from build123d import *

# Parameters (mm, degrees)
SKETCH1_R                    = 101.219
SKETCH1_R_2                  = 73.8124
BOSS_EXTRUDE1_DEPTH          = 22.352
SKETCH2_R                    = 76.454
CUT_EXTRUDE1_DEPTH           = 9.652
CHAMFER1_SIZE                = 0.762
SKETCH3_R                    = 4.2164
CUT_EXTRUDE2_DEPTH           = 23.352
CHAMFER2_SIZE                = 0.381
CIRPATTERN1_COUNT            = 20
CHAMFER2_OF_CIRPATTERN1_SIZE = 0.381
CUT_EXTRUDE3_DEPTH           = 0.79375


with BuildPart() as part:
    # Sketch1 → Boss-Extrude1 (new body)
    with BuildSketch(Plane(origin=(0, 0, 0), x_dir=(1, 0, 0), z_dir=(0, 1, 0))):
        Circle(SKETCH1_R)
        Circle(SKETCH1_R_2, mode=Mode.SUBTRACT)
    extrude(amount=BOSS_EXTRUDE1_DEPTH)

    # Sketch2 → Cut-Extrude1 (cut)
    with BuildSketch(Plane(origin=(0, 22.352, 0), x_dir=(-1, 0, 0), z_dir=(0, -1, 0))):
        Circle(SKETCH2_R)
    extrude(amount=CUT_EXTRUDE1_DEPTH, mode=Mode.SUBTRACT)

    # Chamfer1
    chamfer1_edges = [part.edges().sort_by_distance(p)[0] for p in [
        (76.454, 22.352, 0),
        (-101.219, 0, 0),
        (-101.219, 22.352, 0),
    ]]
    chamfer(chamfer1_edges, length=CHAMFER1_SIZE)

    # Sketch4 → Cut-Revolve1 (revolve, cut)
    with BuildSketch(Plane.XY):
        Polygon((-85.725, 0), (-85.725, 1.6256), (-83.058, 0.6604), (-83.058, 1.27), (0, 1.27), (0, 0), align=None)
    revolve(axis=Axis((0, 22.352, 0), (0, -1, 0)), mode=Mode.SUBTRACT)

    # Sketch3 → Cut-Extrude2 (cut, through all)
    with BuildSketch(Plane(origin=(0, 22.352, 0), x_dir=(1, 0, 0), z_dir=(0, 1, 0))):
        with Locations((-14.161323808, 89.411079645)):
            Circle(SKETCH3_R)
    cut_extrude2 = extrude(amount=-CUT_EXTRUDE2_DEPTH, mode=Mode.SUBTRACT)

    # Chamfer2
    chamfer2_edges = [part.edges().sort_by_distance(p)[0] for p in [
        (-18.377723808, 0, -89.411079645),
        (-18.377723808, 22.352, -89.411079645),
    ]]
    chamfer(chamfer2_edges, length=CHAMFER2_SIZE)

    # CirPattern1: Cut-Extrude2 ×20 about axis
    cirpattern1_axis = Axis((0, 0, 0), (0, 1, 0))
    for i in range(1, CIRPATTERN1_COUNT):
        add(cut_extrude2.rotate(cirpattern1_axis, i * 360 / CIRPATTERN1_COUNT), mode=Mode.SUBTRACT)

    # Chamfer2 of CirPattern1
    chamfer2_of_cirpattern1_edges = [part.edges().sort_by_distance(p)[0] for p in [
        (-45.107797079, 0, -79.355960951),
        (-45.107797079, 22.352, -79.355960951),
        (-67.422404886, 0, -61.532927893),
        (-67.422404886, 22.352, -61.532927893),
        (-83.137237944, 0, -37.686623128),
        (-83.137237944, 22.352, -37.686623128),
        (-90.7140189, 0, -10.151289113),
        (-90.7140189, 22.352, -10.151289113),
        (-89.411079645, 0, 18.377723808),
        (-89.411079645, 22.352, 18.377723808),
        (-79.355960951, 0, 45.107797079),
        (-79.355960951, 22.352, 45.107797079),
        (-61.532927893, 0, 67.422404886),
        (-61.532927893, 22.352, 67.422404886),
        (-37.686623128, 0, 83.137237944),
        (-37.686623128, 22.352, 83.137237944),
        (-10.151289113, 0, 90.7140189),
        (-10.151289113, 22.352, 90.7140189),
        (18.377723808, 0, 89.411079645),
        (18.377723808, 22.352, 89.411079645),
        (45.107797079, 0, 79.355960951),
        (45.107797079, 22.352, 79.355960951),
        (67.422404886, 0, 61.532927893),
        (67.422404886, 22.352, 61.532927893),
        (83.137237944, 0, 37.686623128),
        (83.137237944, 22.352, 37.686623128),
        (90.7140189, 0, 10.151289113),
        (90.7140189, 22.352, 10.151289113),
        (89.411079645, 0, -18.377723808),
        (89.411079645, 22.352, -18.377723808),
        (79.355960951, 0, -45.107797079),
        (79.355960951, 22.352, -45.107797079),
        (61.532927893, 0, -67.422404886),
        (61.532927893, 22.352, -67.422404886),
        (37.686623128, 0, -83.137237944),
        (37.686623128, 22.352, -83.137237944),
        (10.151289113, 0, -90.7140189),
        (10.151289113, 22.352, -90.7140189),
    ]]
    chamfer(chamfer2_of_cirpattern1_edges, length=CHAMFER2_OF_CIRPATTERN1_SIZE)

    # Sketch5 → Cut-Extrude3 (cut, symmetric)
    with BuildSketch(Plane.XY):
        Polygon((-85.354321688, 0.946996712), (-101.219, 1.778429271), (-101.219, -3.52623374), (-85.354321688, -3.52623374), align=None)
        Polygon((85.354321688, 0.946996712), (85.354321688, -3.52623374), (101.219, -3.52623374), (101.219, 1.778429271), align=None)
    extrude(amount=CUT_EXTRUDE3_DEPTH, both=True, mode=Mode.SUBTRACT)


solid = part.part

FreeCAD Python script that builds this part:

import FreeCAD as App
import Part
import Sketcher
from FreeCAD import Vector
Q = App.Units.Quantity


def edges_at(feature, points):
    """Names of the edges that pass closest to the given points."""
    edges = feature.Shape.Edges
    near = lambda p: min(range(len(edges)), key=lambda i: edges[i].distToShape(Part.Vertex(*p))[0])
    return sorted({f"Edge{near(p) + 1}" for p in points})


def add_polygon(sketch, points):
    """Adds a closed chain of lines whose ends are joined by coincident constraints."""
    first, n = sketch.GeometryCount, len(points)
    for a, b in zip(points, points[1:] + points[:1]):
        sketch.addGeometry(Part.LineSegment(App.Vector(*a, 0), App.Vector(*b, 0)), False)
    for i in range(n):
        sketch.addConstraint(Sketcher.Constraint("Coincident", first + i, 2, first + (i + 1) % n, 1))

doc = App.newDocument("Part")
body = doc.addObject("PartDesign::Body", "Body")

sketch1 = body.newObject("Sketcher::SketchObject", "Sketch")
sketch1.AttachmentSupport = (doc.getObject("XZ_Plane"), [""])
sketch1.MapMode = "FlatFace"
sketch1.addGeometry(Part.Circle(Vector(0, 0, 0), Vector(0, 0, 1), 101), False)
sketch1.addGeometry(Part.Circle(Vector(0, 0, 0), Vector(0, 0, 1), 74), False)
sketch1.addConstraint(Sketcher.Constraint("Coincident", 0, 3, -1, 1))
sketch1.addConstraint(Sketcher.Constraint("Coincident", 1, 3, -1, 1))
sketch1.addConstraint(Sketcher.Constraint("Diameter", 0, Q("7.97 in")))
sketch1.addConstraint(Sketcher.Constraint("Diameter", 1, Q("5.812 in")))
pad1 = body.newObject("PartDesign::Pad", "Pad")
pad1.Profile = sketch1
pad1.Length = Q("0.88 in")
pad1.Reversed = True

sketch2 = body.newObject("Sketcher::SketchObject", "Sketch001")
sketch2.AttachmentSupport = (doc.getObject("XZ_Plane"), [""])
sketch2.MapMode = "FlatFace"
sketch2.AttachmentOffset = App.Placement(Vector(0, 0, -0.88 * 25.4), App.Rotation())
sketch2.addGeometry(Part.Circle(Vector(0, 0, 0), Vector(0, 0, 1), 76), False)
sketch2.addConstraint(Sketcher.Constraint("Coincident", 0, 3, -1, 1))
sketch2.addConstraint(Sketcher.Constraint("Diameter", 0, Q("6.02 in")))
pocket1 = body.newObject("PartDesign::Pocket", "Pocket")
pocket1.Profile = sketch2
pocket1.Length = Q("0.38 in")
pocket1.Reversed = True
doc.recompute()

chamfer = body.newObject("PartDesign::Chamfer", "Chamfer")
chamfer.Base = (pocket1, edges_at(pocket1, [(76.454, 22.352, 0), (-101.219, 0, 0), (-101.219, 22.352, 0)]))
chamfer.Size = Q("0.03 in")

sketch3 = body.newObject("Sketcher::SketchObject", "Sketch002")
sketch3.AttachmentSupport = (doc.getObject("XY_Plane"), [""])
sketch3.MapMode = "FlatFace"
add_polygon(sketch3, [(-85.7, 1.6), (-85.7, 0), (0, 0), (0, 1.3), (-83.1, 1.3), (-83.1, 0.7)])
sketch3.addConstraint(Sketcher.Constraint("Vertical", 0))
sketch3.addConstraint(Sketcher.Constraint("Horizontal", 1))
sketch3.addConstraint(Sketcher.Constraint("Vertical", 2))
sketch3.addConstraint(Sketcher.Constraint("Horizontal", 3))
sketch3.addConstraint(Sketcher.Constraint("Vertical", 4))
sketch3.addConstraint(Sketcher.Constraint("Coincident", 1, 2, -1, 1))
sketch3.addConstraint(Sketcher.Constraint("DistanceX", 3, 2, 3, 1, Q("3.27 in")))
sketch3.addConstraint(Sketcher.Constraint("DistanceY", 2, 1, 2, 2, Q("0.05 in")))
sketch3.addConstraint(Sketcher.Constraint("DistanceX", 1, 1, 1, 2, Q("3.375 in")))
sketch3.addConstraint(Sketcher.Constraint("DistanceY", 0, 2, 0, 1, Q("0.064 in")))
sketch3.addConstraint(Sketcher.Constraint("DistanceY", 4, 2, 4, 1, Q("0.024 in")))
groove = body.newObject("PartDesign::Groove", "Groove")
groove.Profile = sketch3
groove.ReferenceAxis = (sketch3, ["V_Axis"])
groove.Angle = 360

sketch4 = body.newObject("Sketcher::SketchObject", "Sketch003")
sketch4.AttachmentSupport = (doc.getObject("XZ_Plane"), [""])
sketch4.MapMode = "FlatFace"
sketch4.AttachmentOffset = App.Placement(Vector(0, 0, -0.88 * 25.4), App.Rotation())
sketch4.addGeometry(Part.Circle(Vector(-14.2, -89.4, 0), Vector(0, 0, 1), 4.2), False)
sketch4.addConstraint(Sketcher.Constraint("Diameter", 0, Q("0.332 in")))
sketch4.addConstraint(Sketcher.Constraint("DistanceY", 0, 3, -1, 1, 89.41108))
sketch4.addConstraint(Sketcher.Constraint("DistanceX", 0, 3, -1, 1, 14.161324))
pocket2 = body.newObject("PartDesign::Pocket", "Pocket001")
pocket2.Profile = sketch4
pocket2.Type = "ThroughAll"
pocket2.Reversed = True
doc.recompute()

chamfer2 = body.newObject("PartDesign::Chamfer", "Chamfer001")
chamfer2.Base = (pocket2, edges_at(pocket2, [(-18.378, 0, -89.411), (-18.378, 22.352, -89.411)]))
chamfer2.Size = Q("0.015 in")
doc.recompute()

polarpattern = body.newObject("PartDesign::PolarPattern", "PolarPattern")
polarpattern.Originals = [pocket2]
polarpattern.Axis = (doc.getObject("Y_Axis"), [""])
polarpattern.Angle = 360
polarpattern.Occurrences = 20
body.Tip = polarpattern
doc.recompute()

chamfer3 = body.newObject("PartDesign::Chamfer", "Chamfer002")
chamfer3.Base = (polarpattern, edges_at(polarpattern, [
    (-45.108, 0, -79.356),
    (-45.108, 22.352, -79.356),
    (-67.422, 0, -61.533),
    (-67.422, 22.352, -61.533),
    (-83.137, 0, -37.687),
    (-83.137, 22.352, -37.687),
    (-90.714, 0, -10.151),
    (-90.714, 22.352, -10.151),
    (-89.411, 0, 18.378),
    (-89.411, 22.352, 18.378),
    (-79.356, 0, 45.108),
    (-79.356, 22.352, 45.108),
    (-61.533, 0, 67.422),
    (-61.533, 22.352, 67.422),
    (-37.687, 0, 83.137),
    (-37.687, 22.352, 83.137),
    (-10.151, 0, 90.714),
    (-10.151, 22.352, 90.714),
    (18.378, 0, 89.411),
    (18.378, 22.352, 89.411),
    (45.108, 0, 79.356),
    (45.108, 22.352, 79.356),
    (67.422, 0, 61.533),
    (67.422, 22.352, 61.533),
    (83.137, 0, 37.687),
    (83.137, 22.352, 37.687),
    (90.714, 0, 10.151),
    (90.714, 22.352, 10.151),
    (89.411, 0, -18.378),
    (89.411, 22.352, -18.378),
    (79.356, 0, -45.108),
    (79.356, 22.352, -45.108),
    (61.533, 0, -67.422),
    (61.533, 22.352, -67.422),
    (37.687, 0, -83.137),
    (37.687, 22.352, -83.137),
    (10.151, 0, -90.714),
    (10.151, 22.352, -90.714),
]))
chamfer3.Size = Q("0.015 in")

sketch5 = body.newObject("Sketcher::SketchObject", "Sketch004")
sketch5.AttachmentSupport = (doc.getObject("XY_Plane"), [""])
sketch5.MapMode = "FlatFace"
add_polygon(sketch5, [(-85.4, 0.9), (-101.2, 1.8), (-101.2, -3.5), (-85.4, -3.5)])
add_polygon(sketch5, [(85.4, 0.9), (85.4, -3.5), (101.2, -3.5), (101.2, 1.8)])
sketch5.addConstraint(Sketcher.Constraint("Vertical", 1))
sketch5.addConstraint(Sketcher.Constraint("Horizontal", 2))
sketch5.addConstraint(Sketcher.Constraint("Vertical", 3))
sketch5.addConstraint(Sketcher.Constraint("Vertical", 4))
sketch5.addConstraint(Sketcher.Constraint("Horizontal", 5))
sketch5.addConstraint(Sketcher.Constraint("Vertical", 6))
sketch5.addConstraint(Sketcher.Constraint("Symmetric", 2, 2, 4, 2, -2))
sketch5.addConstraint(Sketcher.Constraint("Symmetric", 0, 2, 6, 2, -2))
sketch5.addConstraint(Sketcher.Constraint("Horizontal", 3, 2, 7, 2))
sketch5.addConstraint(Sketcher.Constraint("Angle", 0, Q("177 deg")))
sketch5.addConstraint(Sketcher.Constraint("DistanceX", 1, 2, 5, 2, Q("7.97 in")))
sketch5.addConstraint(Sketcher.Constraint("DistanceX", 2, 1, 2, 2, 15.864678))
sketch5.addConstraint(Sketcher.Constraint("DistanceY", 3, 1, 3, 2, 4.47323))
sketch5.addConstraint(Sketcher.Constraint("DistanceY", -1, 1, 0, 2, 1.778429))
pocket3 = body.newObject("PartDesign::Pocket", "Pocket002")
pocket3.Profile = sketch5
pocket3.Length = Q("0.0625 in")
pocket3.Midplane = True

doc.recompute()
